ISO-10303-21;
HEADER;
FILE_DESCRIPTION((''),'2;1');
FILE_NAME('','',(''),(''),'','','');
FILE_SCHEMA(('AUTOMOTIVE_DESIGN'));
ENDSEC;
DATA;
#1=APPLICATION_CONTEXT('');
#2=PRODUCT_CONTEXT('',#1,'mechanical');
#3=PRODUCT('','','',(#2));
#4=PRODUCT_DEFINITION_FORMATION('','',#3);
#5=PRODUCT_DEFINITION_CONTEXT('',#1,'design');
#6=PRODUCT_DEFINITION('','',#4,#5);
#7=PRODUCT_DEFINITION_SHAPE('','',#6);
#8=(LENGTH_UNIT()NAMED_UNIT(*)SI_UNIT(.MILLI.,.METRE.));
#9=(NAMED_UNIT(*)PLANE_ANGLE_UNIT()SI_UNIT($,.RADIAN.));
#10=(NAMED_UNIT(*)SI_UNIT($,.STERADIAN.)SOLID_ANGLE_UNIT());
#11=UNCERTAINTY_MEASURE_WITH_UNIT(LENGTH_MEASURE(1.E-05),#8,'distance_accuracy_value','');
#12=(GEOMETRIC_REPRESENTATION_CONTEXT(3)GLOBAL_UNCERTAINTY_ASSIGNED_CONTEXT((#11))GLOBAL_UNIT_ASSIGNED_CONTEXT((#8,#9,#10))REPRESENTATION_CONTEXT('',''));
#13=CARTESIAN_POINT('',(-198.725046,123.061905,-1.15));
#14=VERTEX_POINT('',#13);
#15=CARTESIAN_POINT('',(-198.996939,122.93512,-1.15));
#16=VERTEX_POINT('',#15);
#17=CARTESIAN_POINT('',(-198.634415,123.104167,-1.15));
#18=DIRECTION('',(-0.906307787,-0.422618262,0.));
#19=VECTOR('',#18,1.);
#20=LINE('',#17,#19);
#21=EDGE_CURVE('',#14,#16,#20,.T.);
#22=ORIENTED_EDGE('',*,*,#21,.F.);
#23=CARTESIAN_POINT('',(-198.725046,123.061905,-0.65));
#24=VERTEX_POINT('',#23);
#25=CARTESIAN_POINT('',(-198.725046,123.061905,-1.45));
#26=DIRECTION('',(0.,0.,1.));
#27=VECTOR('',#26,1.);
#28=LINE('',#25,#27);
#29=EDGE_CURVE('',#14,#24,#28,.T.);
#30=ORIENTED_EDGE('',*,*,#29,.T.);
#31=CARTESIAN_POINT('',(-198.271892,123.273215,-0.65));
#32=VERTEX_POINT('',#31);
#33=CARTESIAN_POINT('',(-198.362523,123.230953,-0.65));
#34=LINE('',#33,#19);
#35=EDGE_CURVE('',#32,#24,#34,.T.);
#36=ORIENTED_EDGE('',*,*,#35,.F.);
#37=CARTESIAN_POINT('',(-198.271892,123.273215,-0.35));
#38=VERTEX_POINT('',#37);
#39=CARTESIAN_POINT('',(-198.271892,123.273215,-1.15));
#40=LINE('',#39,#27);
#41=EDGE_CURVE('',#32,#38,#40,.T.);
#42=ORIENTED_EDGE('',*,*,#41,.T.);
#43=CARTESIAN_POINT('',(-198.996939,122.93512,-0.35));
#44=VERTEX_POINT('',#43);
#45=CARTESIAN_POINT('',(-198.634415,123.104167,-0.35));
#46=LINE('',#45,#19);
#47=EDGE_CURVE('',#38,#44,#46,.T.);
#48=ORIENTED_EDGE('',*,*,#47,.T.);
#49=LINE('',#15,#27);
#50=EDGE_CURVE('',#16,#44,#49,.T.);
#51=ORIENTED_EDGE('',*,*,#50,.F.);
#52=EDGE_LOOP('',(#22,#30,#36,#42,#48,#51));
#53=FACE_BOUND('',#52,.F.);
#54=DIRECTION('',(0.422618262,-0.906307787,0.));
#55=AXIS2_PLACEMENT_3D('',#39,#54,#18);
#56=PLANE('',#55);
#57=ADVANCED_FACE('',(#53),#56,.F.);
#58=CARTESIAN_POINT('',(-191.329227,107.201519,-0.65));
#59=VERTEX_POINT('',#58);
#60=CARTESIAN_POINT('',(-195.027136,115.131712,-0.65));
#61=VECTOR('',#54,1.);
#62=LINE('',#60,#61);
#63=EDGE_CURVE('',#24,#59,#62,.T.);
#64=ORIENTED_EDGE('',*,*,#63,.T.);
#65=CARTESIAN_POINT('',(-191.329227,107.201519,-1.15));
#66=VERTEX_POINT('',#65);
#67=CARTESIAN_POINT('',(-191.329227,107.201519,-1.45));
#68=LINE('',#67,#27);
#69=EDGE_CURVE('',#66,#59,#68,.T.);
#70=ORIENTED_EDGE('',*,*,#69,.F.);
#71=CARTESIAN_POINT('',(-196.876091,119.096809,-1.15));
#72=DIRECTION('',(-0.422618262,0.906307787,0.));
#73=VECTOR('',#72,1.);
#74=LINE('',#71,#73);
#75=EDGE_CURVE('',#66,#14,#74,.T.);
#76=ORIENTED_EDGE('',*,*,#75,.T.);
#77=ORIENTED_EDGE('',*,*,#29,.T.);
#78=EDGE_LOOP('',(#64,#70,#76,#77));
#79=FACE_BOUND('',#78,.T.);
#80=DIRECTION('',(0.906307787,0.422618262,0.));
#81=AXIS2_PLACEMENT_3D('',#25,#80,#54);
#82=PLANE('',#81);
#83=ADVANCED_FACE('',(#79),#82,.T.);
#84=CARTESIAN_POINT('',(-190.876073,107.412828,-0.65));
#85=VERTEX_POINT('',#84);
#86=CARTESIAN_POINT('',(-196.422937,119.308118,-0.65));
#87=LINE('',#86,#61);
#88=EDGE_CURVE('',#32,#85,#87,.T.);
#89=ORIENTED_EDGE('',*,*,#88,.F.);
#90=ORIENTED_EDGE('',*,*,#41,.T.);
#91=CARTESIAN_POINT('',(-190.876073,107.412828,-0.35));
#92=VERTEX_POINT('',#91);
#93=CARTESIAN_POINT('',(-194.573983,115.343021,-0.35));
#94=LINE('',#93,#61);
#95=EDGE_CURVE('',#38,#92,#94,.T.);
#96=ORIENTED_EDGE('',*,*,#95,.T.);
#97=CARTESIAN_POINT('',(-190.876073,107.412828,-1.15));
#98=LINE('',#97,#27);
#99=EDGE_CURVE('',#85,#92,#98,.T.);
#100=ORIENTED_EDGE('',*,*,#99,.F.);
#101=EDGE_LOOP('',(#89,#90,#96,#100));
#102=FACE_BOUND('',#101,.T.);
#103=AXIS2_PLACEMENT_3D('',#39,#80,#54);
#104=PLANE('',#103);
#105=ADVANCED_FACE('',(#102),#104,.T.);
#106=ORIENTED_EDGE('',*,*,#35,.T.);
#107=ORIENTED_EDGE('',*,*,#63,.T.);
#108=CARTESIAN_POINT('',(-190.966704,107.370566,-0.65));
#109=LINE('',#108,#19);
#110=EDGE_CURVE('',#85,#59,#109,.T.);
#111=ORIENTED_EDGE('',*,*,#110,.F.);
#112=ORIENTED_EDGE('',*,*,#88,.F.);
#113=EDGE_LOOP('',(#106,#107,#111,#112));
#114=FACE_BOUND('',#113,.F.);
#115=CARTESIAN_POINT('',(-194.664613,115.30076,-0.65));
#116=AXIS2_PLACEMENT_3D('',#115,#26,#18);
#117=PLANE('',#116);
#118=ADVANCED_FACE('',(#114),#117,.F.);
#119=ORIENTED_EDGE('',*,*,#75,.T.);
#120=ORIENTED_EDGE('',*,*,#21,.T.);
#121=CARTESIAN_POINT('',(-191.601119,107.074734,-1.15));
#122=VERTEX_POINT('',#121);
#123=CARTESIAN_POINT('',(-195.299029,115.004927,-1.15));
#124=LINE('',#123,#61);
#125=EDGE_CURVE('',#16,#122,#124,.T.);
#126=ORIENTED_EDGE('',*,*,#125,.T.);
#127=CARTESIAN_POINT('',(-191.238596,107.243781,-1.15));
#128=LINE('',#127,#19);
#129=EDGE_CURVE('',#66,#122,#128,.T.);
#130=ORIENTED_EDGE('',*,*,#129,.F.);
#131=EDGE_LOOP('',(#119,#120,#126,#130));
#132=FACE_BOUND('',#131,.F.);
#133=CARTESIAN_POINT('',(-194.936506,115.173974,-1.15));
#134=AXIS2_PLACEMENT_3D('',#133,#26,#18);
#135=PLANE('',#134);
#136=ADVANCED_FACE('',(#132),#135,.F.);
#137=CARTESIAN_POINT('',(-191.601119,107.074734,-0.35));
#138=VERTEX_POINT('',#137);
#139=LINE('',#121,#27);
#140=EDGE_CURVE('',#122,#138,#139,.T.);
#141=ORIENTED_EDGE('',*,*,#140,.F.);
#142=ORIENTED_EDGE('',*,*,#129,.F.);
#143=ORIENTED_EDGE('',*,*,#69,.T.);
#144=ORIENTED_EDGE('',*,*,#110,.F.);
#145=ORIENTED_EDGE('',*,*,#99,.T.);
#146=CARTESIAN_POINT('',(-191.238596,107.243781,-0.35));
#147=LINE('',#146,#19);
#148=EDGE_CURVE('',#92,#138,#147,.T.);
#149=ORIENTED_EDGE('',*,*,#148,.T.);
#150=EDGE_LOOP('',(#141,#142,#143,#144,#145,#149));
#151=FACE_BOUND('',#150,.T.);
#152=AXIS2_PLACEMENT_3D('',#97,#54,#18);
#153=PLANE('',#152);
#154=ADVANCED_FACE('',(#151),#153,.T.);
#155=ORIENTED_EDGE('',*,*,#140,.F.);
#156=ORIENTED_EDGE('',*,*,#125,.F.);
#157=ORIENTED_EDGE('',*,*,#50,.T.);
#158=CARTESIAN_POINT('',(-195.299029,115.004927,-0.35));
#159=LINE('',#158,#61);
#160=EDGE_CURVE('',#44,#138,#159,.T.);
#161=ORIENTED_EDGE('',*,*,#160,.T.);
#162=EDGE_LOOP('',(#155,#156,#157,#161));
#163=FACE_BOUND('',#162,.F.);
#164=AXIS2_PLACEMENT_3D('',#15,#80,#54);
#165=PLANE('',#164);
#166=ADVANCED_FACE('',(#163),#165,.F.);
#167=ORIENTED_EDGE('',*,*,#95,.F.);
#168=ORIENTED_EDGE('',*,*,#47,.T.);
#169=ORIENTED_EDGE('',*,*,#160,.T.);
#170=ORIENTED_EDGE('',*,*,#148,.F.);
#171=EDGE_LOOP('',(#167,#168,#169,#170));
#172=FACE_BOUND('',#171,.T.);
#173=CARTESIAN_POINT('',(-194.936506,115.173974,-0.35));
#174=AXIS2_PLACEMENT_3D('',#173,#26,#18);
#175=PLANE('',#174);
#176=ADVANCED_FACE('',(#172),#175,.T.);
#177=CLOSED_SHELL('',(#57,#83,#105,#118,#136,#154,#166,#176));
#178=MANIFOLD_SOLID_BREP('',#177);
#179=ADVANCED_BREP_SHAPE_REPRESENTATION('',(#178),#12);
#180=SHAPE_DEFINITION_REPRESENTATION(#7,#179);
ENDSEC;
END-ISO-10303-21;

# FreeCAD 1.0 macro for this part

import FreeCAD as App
import Part
import Sketcher
from FreeCAD import Vector
Q = App.Units.Quantity


def add_polygon(sketch, points):
    """Adds a closed chain of lines whose ends are joined by coincident constraints."""
    first, n = sketch.GeometryCount, len(points)
    for a, b in zip(points, points[1:] + points[:1]):
        sketch.addGeometry(Part.LineSegment(App.Vector(*a, 0), App.Vector(*b, 0)), False)
    for i in range(n):
        sketch.addConstraint(Sketcher.Constraint("Coincident", first + i, 2, first + (i + 1) % n, 1))

doc = App.newDocument("Part")
body = doc.addObject("PartDesign::Body", "Body")

sketch1 = body.newObject("Sketcher::SketchObject", "Sketch")
sketch1.AttachmentSupport = (doc.getObject("XY_Plane"), [""])
sketch1.MapMode = "FlatFace"
add_polygon(sketch1, [(0, 17.5), (0, 0), (0.8, 0), (0.8, 17.5)])
sketch1.addConstraint([
    Sketcher.Constraint("Vertical", 0),
    Sketcher.Constraint("Horizontal", 1),
    Sketcher.Constraint("Vertical", 2),
    Sketcher.Constraint("Horizontal", 3),
    Sketcher.Constraint("Coincident", 0, 2, -1, 1),
    Sketcher.Constraint("DistanceX", 1, 1, 1, 2, Q("0.8 mm")),
    Sketcher.Constraint("DistanceY", 0, 2, 0, 1, Q("17.5 mm")),
])
pad1 = body.newObject("PartDesign::Pad", "Pad")
pad1.Profile = sketch1
pad1.Length = 0.8
body2 = doc.addObject("PartDesign::Body", "Body001")

sketch2 = body2.newObject("Sketcher::SketchObject", "Sketch001")
sketch2.AttachmentSupport = (doc.getObject("XY_Plane001"), [""])
sketch2.MapMode = "FlatFace"
sketch2.AttachmentOffset = App.Placement(Vector(0, 0, 0.3), App.Rotation())
add_polygon(sketch2, [(0.3, 17.5), (0.3, 0), (1.1, 0), (1.1, 17.5)])
sketch2.addConstraint([
    Sketcher.Constraint("Vertical", 0),
    Sketcher.Constraint("Horizontal", 1),
    Sketcher.Constraint("Vertical", 2),
    Sketcher.Constraint("Horizontal", 3),
    Sketcher.Constraint("PointOnObject", 0, 2, -1),
    Sketcher.Constraint("DistanceX", 1, 1, 1, 2, Q("0.8 mm")),
    Sketcher.Constraint("DistanceY", 0, 2, 0, 1, Q("17.5 mm")),
    Sketcher.Constraint("DistanceX", -1, 1, 0, 2, Q("0.3 mm")),
])
pad2 = body2.newObject("PartDesign::Pad", "Pad001")
pad2.Profile = sketch2
pad2.Length = 0.8
doc.recompute()

boolean = body2.newObject("PartDesign::Boolean", "Boolean")
boolean.Type = "Cut"
boolean.addObjects([body])
body3 = doc.addObject("PartDesign::Body", "Body002")
doc.recompute()

body2.Placement = App.Placement(Vector(-198, 123.4, -1.45), App.Rotation(Vector(0, 0, 1), 205))
boolean2 = body3.newObject("PartDesign::Boolean", "Boolean001")
boolean2.Type = "Fuse"
boolean2.addObjects([body2])

doc.recompute()
